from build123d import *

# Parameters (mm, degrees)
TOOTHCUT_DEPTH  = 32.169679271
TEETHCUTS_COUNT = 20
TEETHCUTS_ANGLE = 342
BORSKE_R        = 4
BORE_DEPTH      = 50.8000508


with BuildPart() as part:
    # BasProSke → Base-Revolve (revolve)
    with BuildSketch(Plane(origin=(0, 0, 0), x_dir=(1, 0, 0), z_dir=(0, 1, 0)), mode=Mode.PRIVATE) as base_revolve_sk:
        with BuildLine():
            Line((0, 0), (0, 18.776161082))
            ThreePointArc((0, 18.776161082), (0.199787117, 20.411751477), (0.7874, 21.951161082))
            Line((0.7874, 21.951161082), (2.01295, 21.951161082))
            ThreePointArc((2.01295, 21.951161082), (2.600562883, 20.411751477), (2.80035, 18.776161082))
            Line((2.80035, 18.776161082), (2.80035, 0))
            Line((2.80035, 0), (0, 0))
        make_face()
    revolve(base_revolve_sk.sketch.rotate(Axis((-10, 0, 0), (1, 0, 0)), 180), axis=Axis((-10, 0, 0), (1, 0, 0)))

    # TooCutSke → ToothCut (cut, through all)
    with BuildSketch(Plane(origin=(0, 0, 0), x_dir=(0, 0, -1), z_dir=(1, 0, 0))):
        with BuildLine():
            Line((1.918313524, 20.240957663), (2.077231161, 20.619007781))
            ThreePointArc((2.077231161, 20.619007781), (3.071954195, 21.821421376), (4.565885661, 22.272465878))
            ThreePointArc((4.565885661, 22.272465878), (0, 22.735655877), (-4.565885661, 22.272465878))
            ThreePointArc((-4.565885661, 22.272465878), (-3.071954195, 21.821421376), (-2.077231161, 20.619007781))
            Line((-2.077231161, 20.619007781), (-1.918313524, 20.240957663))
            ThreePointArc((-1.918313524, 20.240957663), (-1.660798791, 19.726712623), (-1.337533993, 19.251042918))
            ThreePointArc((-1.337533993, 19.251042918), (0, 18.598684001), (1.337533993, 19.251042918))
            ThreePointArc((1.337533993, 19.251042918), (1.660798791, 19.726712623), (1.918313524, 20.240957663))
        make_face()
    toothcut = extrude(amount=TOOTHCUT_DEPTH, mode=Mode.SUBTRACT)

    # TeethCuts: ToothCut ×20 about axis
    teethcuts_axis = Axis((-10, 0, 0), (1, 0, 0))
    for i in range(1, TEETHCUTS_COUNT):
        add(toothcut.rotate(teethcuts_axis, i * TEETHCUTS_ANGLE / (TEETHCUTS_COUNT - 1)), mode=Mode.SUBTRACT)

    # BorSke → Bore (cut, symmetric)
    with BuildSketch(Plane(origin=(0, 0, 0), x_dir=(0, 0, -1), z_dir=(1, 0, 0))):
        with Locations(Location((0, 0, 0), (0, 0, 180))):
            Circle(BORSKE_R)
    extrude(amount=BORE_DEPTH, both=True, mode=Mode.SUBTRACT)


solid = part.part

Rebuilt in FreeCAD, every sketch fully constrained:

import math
import FreeCAD as App
import Part
import Sketcher
from FreeCAD import Vector
Q = App.Units.Quantity

doc = App.newDocument("Part")
body = doc.addObject("PartDesign::Body", "Body")

sketch1 = body.newObject("Sketcher::SketchObject", "Sketch")
sketch1.AttachmentSupport = (doc.getObject("XZ_Plane"), [""])
sketch1.MapMode = "FlatFace"
sketch1.addGeometry([
    Part.LineSegment(Vector(0, -18.8, 0), Vector(0, 0, 0)),
    Part.LineSegment(Vector(0, 0, 0), Vector(2.8, 0, 0)),
    Part.LineSegment(Vector(2.8, 0, 0), Vector(2.8, -18.8, 0)),
    Part.ArcOfCircle(Part.Circle(Vector(-4, -18.8, 0), Vector(0, 0, 1), 6.8), math.radians(-28), math.radians(0)),
    Part.LineSegment(Vector(2, -22, 0), Vector(0.8, -22, 0)),
    Part.ArcOfCircle(Part.Circle(Vector(6.8, -18.8, 0), Vector(0, 0, 1), 6.8), math.radians(180), math.radians(208)),
], False)
sketch1.addConstraint([
    Sketcher.Constraint("Coincident", 0, 2, 1, 1),
    Sketcher.Constraint("Coincident", 1, 2, 2, 1),
    Sketcher.Constraint("Tangent", 2, 2, 3, 2),
    Sketcher.Constraint("Coincident", 3, 1, 4, 1),
    Sketcher.Constraint("Coincident", 4, 2, 5, 2),
    Sketcher.Constraint("Tangent", 5, 1, 0, 1),
    Sketcher.Constraint("Vertical", 0),
    Sketcher.Constraint("Horizontal", 1),
    Sketcher.Constraint("Vertical", 2),
    Sketcher.Constraint("Horizontal", 4),
    Sketcher.Constraint("Coincident", 0, 2, -1, 1),
    Sketcher.Constraint("Equal", 3, 5),
    Sketcher.Constraint("Horizontal", 3, 3, 5, 3),
    Sketcher.Constraint("Radius", 3, 6.79491),
    Sketcher.Constraint("DistanceY", 3, 1, 2, 2, 3.175),
    Sketcher.Constraint("DistanceX", 1, 1, 1, 2, 2.80035),
    Sketcher.Constraint("DistanceY", 0, 1, 0, 2, 18.776161),
])
revolution = body.newObject("PartDesign::Revolution", "Revolution")
revolution.Profile = sketch1
revolution.ReferenceAxis = (sketch1, ["H_Axis"])
revolution.Angle = 360

sketch2 = body.newObject("Sketcher::SketchObject", "Sketch001")
sketch2.AttachmentSupport = (doc.getObject("YZ_Plane"), [""])
sketch2.MapMode = "FlatFace"
sketch2.addGeometry([
    Part.LineSegment(Vector(20.24, -1.92, 0), Vector(20.62, -2.08, 0)),
    Part.ArcOfCircle(Part.Circle(Vector(19.57, -4.57, 0), Vector(0, 0, 1), 2.7), math.radians(0), math.radians(67)),
    Part.ArcOfCircle(Part.Circle(Vector(0, 0, 0), Vector(0, 0, 1), 22.74), math.radians(-12), math.radians(12)),
    Part.ArcOfCircle(Part.Circle(Vector(19.57, 4.57, 0), Vector(0, 0, 1), 2.7), math.radians(-67), math.radians(0)),
    Part.LineSegment(Vector(20.62, 2.08, 0), Vector(20.24, 1.92, 0)),
    Part.ArcOfCircle(Part.Circle(Vector(21.92, -2.08, 0), Vector(0, 0, 1), 4.34), math.radians(112.8), math.radians(128)),
    Part.ArcOfCircle(Part.Circle(Vector(20.3, 0, 0), Vector(0, 0, 1), 1.7), math.radians(128), math.radians(232)),
    Part.ArcOfCircle(Part.Circle(Vector(21.92, 2.08, 0), Vector(0, 0, 1), 4.34), math.radians(-128), math.radians(-112.8)),
], False)
sketch2.addConstraint([
    Sketcher.Constraint("Tangent", 0, 2, 1, 2),
    Sketcher.Constraint("Coincident", 1, 1, 2, 1),
    Sketcher.Constraint("Coincident", 2, 2, 3, 2),
    Sketcher.Constraint("Tangent", 3, 1, 4, 1),
    Sketcher.Constraint("Tangent", 4, 2, 5, 1),
    Sketcher.Constraint("Tangent", 5, 2, 6, 1),
    Sketcher.Constraint("Tangent", 6, 2, 7, 1),
    Sketcher.Constraint("Tangent", 7, 2, 0, 1),
    Sketcher.Constraint("Coincident", 2, 3, -1, 1),
    Sketcher.Constraint("Equal", 1, 3),
    Sketcher.Constraint("Equal", 5, 7),
    Sketcher.Constraint("Symmetric", 1, 3, 3, 3, -1),
    Sketcher.Constraint("Symmetric", 5, 3, 7, 3, -1),
    Sketcher.Constraint("Horizontal", 3, 3, 2, 2),
    Sketcher.Constraint("Angle", 0, Q("-22.8 deg")),
    Sketcher.Constraint("Radius", 1, 2.699592),
    Sketcher.Constraint("Radius", 2, 22.735656),
    Sketcher.Constraint("Radius", 5, 4.338955),
    Sketcher.Constraint("Radius", 6, 1.697355),
    Sketcher.Constraint("DistanceX", -1, 1, 5, 3, 21.92237),
    Sketcher.Constraint("DistanceY", 5, 3, -1, 1, 2.081609),
])
pocket1 = body.newObject("PartDesign::Pocket", "Pocket")
pocket1.Profile = sketch2
pocket1.Type = "ThroughAll"
pocket1.Reversed = True
doc.recompute()

polarpattern = body.newObject("PartDesign::PolarPattern", "PolarPattern")
polarpattern.Originals = [pocket1]
polarpattern.Axis = (doc.getObject("X_Axis"), [""])
polarpattern.Angle = 360
polarpattern.Occurrences = 20
body.Tip = polarpattern

sketch3 = body.newObject("Sketcher::SketchObject", "Sketch002")
sketch3.AttachmentSupport = (doc.getObject("YZ_Plane"), [""])
sketch3.MapMode = "FlatFace"
sketch3.addGeometry(Part.Circle(Vector(0, 0, 0), Vector(0, 0, 1), 4), False)
sketch3.addConstraint([
    Sketcher.Constraint("Coincident", 0, 3, -1, 1),
    Sketcher.Constraint("Diameter", 0, 8.0),
])
pocket2 = body.newObject("PartDesign::Pocket", "Pocket001")
pocket2.Profile = sketch3
pocket2.Length = 101.600102
pocket2.Midplane = True

doc.recompute()
